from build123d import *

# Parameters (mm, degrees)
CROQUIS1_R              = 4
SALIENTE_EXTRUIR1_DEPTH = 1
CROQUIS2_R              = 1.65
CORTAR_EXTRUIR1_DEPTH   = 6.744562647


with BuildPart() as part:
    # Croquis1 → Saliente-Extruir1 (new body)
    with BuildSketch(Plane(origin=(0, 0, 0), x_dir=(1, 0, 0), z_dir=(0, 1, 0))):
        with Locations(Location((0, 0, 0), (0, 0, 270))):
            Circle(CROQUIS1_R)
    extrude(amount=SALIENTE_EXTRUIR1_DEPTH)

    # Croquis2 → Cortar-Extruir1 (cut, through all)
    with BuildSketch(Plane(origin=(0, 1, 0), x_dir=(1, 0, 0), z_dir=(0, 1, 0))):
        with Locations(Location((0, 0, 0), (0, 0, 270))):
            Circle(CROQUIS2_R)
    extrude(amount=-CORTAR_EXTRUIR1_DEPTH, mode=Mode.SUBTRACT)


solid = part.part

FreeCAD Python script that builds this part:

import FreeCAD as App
import Part
import Sketcher

V = App.Vector
Q = App.Units.Quantity

doc = App.newDocument("Part")
body = doc.addObject("PartDesign::Body", "Body")

# Sketch on XZ plane
sketch1 = doc.addObject("Sketcher::SketchObject", "Sketch")
body.addObject(sketch1)
sketch1.AttachmentSupport = (doc.XZ_Plane, [""])
sketch1.MapMode = "FlatFace"
sketch1.addGeometry(Part.Circle(V(0, 0, 0), V(0, 0, 1), 4), False)
sketch1.addConstraint([
    Sketcher.Constraint("Coincident", 0, 3, -1, 1),
    Sketcher.Constraint("Diameter", 0, Q("8 mm")),
])
pad1 = doc.addObject("PartDesign::Pad", "Pad")
body.addObject(pad1)
pad1.Profile = sketch1
pad1.Length = 1
pad1.Reversed = True

# Sketch on XZ plane
sketch2 = doc.addObject("Sketcher::SketchObject", "Sketch001")
body.addObject(sketch2)
sketch2.AttachmentSupport = (doc.XZ_Plane, [""])
sketch2.MapMode = "FlatFace"
sketch2.AttachmentOffset = App.Placement(V(0, 0, -1), App.Rotation())
sketch2.addGeometry(Part.Circle(V(0, 0, 0), V(0, 0, 1), 1.65), False)
sketch2.addConstraint([
    Sketcher.Constraint("Coincident", 0, 3, -1, 1),
    Sketcher.Constraint("Diameter", 0, Q("3.3 mm")),
])
pocket1 = doc.addObject("PartDesign::Pocket", "Pocket")
body.addObject(pocket1)
pocket1.Profile = sketch2
pocket1.Type = "ThroughAll"
pocket1.Reversed = True

doc.recompute()
